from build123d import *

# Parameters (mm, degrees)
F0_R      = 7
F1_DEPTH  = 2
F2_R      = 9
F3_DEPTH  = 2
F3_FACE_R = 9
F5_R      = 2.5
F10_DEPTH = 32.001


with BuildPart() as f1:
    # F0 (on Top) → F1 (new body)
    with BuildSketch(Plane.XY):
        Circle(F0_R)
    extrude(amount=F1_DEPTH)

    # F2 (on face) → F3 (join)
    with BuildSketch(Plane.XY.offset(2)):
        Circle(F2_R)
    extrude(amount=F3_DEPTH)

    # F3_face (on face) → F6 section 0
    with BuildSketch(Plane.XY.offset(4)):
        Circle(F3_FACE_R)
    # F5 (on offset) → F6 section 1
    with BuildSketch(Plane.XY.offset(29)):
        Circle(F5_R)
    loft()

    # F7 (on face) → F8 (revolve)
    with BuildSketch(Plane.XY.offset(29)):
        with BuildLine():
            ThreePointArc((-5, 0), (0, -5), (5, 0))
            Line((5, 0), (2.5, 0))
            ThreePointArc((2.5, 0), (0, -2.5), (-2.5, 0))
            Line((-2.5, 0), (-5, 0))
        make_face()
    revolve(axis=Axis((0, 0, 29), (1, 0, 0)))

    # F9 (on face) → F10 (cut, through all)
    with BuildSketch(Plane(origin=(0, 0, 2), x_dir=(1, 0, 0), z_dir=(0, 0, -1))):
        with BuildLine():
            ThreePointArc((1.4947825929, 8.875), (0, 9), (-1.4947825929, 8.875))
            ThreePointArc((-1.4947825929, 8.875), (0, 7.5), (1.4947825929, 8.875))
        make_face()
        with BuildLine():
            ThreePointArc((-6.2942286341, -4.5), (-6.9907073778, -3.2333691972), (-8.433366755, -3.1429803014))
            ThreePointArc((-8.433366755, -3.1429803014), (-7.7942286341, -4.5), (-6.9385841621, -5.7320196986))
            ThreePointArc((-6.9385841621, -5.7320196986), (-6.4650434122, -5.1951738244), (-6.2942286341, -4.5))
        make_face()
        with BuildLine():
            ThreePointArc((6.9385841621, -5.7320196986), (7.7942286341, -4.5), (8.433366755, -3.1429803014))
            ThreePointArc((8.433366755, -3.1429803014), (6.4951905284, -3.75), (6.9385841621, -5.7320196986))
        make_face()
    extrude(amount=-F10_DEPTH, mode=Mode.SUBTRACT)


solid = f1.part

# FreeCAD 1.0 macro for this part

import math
import FreeCAD as App
import Part
import Sketcher

doc = App.newDocument("Part")
body = doc.addObject("PartDesign::Body", "Body")

# Sketch on XY plane
sketch1 = body.newObject("Sketcher::SketchObject", "Sketch")
sketch1.AttachmentSupport = (doc.getObject("XY_Plane"), [""])
sketch1.MapMode = "FlatFace"
sketch1.addGeometry(Part.Circle(App.Vector(0, 0, 0), App.Vector(0, 0, 1), 7), False)
sketch1.addConstraint([
    Sketcher.Constraint("Coincident", 0, 3, -1, 1),
    Sketcher.Constraint("Diameter", 0, 14.0),
])
pad1 = body.newObject("PartDesign::Pad", "Pad")
pad1.Profile = sketch1
pad1.Length = 2

# Sketch on XY plane
sketch2 = body.newObject("Sketcher::SketchObject", "Sketch001")
sketch2.AttachmentSupport = (doc.getObject("XY_Plane"), [""])
sketch2.MapMode = "FlatFace"
sketch2.AttachmentOffset = App.Placement(App.Vector(0, 0, 2), App.Rotation())
sketch2.addGeometry(Part.Circle(App.Vector(0, 0, 0), App.Vector(0, 0, 1), 9), False)
sketch2.addConstraint([
    Sketcher.Constraint("Coincident", 0, 3, -1, 1),
    Sketcher.Constraint("Diameter", 0, 18.0),
])
pad2 = body.newObject("PartDesign::Pad", "Pad001")
pad2.Profile = sketch2
pad2.Length = 2

# Sketch on XY plane
sketch3 = body.newObject("Sketcher::SketchObject", "Sketch002")
sketch3.AttachmentSupport = (doc.getObject("XY_Plane"), [""])
sketch3.MapMode = "FlatFace"
sketch3.AttachmentOffset = App.Placement(App.Vector(0, 0, 4), App.Rotation())
sketch3.addGeometry(Part.Circle(App.Vector(0, 0, 0), App.Vector(0, 0, 1), 9), False)
sketch3.addConstraint([
    Sketcher.Constraint("Coincident", 0, 3, -1, 1),
    Sketcher.Constraint("Diameter", 0, 18.0),
])

# Sketch on XY plane
sketch4 = body.newObject("Sketcher::SketchObject", "Sketch003")
sketch4.AttachmentSupport = (doc.getObject("XY_Plane"), [""])
sketch4.MapMode = "FlatFace"
sketch4.AttachmentOffset = App.Placement(App.Vector(0, 0, 29), App.Rotation())
sketch4.addGeometry(Part.Circle(App.Vector(0, 0, 0), App.Vector(0, 0, 1), 2.5), False)
sketch4.addConstraint([
    Sketcher.Constraint("Coincident", 0, 3, -1, 1),
    Sketcher.Constraint("Diameter", 0, 5.0),
])

additiveloft = body.newObject("PartDesign::AdditiveLoft", "AdditiveLoft")
additiveloft.Profile = sketch3
additiveloft.Sections = [sketch4]

# Sketch on XY plane
sketch5 = body.newObject("Sketcher::SketchObject", "Sketch004")
sketch5.AttachmentSupport = (doc.getObject("XY_Plane"), [""])
sketch5.MapMode = "FlatFace"
sketch5.AttachmentOffset = App.Placement(App.Vector(0, 0, 29), App.Rotation())
sketch5.addGeometry([
    Part.ArcOfCircle(Part.Circle(App.Vector(0, 0, 0), App.Vector(0, 0, 1), 5), math.radians(180), math.radians(360)),
    Part.LineSegment(App.Vector(5, 0, 0), App.Vector(2.5, 0, 0)),
    Part.ArcOfCircle(Part.Circle(App.Vector(0, 0, 0), App.Vector(0, 0, 1), 2.5), math.radians(180), math.radians(360)),
    Part.LineSegment(App.Vector(-2.5, 0, 0), App.Vector(-5, 0, 0)),
], False)
sketch5.addConstraint([
    Sketcher.Constraint("Coincident", 0, 2, 1, 1),
    Sketcher.Constraint("Coincident", 1, 2, 2, 2),
    Sketcher.Constraint("Coincident", 2, 1, 3, 1),
    Sketcher.Constraint("Coincident", 3, 2, 0, 1),
    Sketcher.Constraint("Horizontal", 1),
    Sketcher.Constraint("Horizontal", 3),
    Sketcher.Constraint("Coincident", 0, 3, -1, 1),
    Sketcher.Constraint("Coincident", 2, 3, -1, 1),
    Sketcher.Constraint("PointOnObject", 0, 2, -1),
    Sketcher.Constraint("PointOnObject", 2, 1, -1),
    Sketcher.Constraint("Radius", 0, 5.0),
    Sketcher.Constraint("Radius", 2, 2.5),
])
revolution = body.newObject("PartDesign::Revolution", "Revolution")
revolution.Profile = sketch5
revolution.ReferenceAxis = (sketch5, ["H_Axis"])
revolution.Angle = 360

# Sketch on XY plane
sketch6 = body.newObject("Sketcher::SketchObject", "Sketch005")
sketch6.AttachmentSupport = (doc.getObject("XY_Plane"), [""])
sketch6.MapMode = "FlatFace"
sketch6.AttachmentOffset = App.Placement(App.Vector(0, 0, 2), App.Rotation())
sketch6.addGeometry([
    Part.ArcOfCircle(Part.Circle(App.Vector(0, 0, 0), App.Vector(0, 0, 1), 9), math.radians(-99.560384), math.radians(-80.439616)),  # 0
    Part.ArcOfCircle(Part.Circle(App.Vector(0, -9, 0), App.Vector(0, 0, 1), 1.5), math.radians(4.780192), math.radians(175.219808)),  # 1
    Part.ArcOfCircle(Part.Circle(App.Vector(-7.794229, 4.5, 0), App.Vector(0, 0, 1), 1.5), math.radians(-115.219808), math.radians(0)),  # 2
    Part.ArcOfCircle(Part.Circle(App.Vector(0, 0, 0), App.Vector(0, 0, 1), 9), math.radians(140.439616), math.radians(159.560384)),  # 3
    Part.ArcOfCircle(Part.Circle(App.Vector(-7.794229, 4.5, 0), App.Vector(0, 0, 1), 1.5), math.radians(0), math.radians(55.219808)),  # 4
    Part.ArcOfCircle(Part.Circle(App.Vector(0, 0, 0), App.Vector(0, 0, 1), 9), math.radians(20.439616), math.radians(39.560384)),  # 5
    Part.ArcOfCircle(Part.Circle(App.Vector(7.794229, 4.5, 0), App.Vector(0, 0, 1), 1.5), math.radians(124.780192), math.radians(295.219808)),  # 6
], False)
sketch6.addConstraint([
    Sketcher.Constraint("Coincident", 0, 1, 1, 2),
    Sketcher.Constraint("Coincident", 1, 1, 0, 2),
    Sketcher.Constraint("Coincident", 2, 1, 3, 2),
    Sketcher.Constraint("Coincident", 3, 1, 4, 2),
    Sketcher.Constraint("Tangent", 4, 1, 2, 2),
    Sketcher.Constraint("Coincident", 5, 1, 6, 2),
    Sketcher.Constraint("Coincident", 6, 1, 5, 2),
    Sketcher.Constraint("Coincident", 0, 3, -1, 1),
    Sketcher.Constraint("Coincident", 3, 3, -1, 1),
    Sketcher.Constraint("Coincident", 5, 3, -1, 1),
    Sketcher.Constraint("Equal", 1, 2),
    Sketcher.Constraint("Equal", 0, 3),
    Sketcher.Constraint("Equal", 2, 4),
    Sketcher.Constraint("Equal", 3, 5),
    Sketcher.Constraint("Equal", 4, 6),
    Sketcher.Constraint("Symmetric", 2, 3, 6, 3, -2),
    Sketcher.Constraint("PointOnObject", 1, 3, -2),
    Sketcher.Constraint("Horizontal", 6, 3, 4, 1),
    Sketcher.Constraint("Radius", 0, 9.0),
    Sketcher.Constraint("Radius", 1, 1.5),
    Sketcher.Constraint("DistanceY", 1, 3, -1, 1, 9.0),
    Sketcher.Constraint("DistanceY", -1, 1, 2, 3, 4.5),
    Sketcher.Constraint("DistanceX", 2, 3, -1, 1, 7.794229),
])
pocket1 = body.newObject("PartDesign::Pocket", "Pocket")
pocket1.Profile = sketch6
pocket1.Type = "ThroughAll"
pocket1.Reversed = True

doc.recompute()
